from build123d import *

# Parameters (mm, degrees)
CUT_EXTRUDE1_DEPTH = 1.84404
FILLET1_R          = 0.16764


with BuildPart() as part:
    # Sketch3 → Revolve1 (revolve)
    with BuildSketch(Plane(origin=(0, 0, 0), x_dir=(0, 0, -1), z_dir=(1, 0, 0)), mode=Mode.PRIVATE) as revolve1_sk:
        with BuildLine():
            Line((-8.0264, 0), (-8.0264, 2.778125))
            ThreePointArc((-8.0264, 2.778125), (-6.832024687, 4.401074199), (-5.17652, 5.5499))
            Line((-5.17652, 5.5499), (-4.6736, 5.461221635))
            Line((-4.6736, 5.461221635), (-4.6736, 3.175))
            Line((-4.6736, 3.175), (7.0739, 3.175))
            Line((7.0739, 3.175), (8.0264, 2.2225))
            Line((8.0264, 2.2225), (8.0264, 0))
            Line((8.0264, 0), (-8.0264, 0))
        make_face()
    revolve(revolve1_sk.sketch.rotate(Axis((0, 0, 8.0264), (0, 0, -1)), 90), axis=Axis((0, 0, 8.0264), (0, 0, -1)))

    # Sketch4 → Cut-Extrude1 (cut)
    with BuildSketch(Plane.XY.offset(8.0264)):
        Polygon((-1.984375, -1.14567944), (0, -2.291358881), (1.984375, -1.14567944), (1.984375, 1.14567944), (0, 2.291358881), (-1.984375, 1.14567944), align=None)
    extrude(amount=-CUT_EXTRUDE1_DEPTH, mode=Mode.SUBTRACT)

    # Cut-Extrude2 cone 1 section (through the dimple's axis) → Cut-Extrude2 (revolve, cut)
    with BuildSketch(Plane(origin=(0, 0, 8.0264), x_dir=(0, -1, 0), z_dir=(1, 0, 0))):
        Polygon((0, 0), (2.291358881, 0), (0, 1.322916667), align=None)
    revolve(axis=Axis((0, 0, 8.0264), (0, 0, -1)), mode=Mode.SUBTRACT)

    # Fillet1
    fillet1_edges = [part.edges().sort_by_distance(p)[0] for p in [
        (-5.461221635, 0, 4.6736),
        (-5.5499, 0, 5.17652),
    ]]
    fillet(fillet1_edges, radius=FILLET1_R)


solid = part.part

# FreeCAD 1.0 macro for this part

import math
import FreeCAD as App
import Part
import Sketcher
Q = App.Units.Quantity


def edges_at(feature, points):
    """Names of the edges that pass closest to the given points."""
    edges = feature.Shape.Edges
    near = lambda p: min(range(len(edges)), key=lambda i: edges[i].distToShape(Part.Vertex(*p))[0])
    return sorted({f"Edge{near(p) + 1}" for p in points})


def add_polygon(sketch, points):
    """Adds a closed chain of lines whose ends are joined by coincident constraints."""
    first, n = sketch.GeometryCount, len(points)
    for a, b in zip(points, points[1:] + points[:1]):
        sketch.addGeometry(Part.LineSegment(App.Vector(*a, 0), App.Vector(*b, 0)), False)
    for i in range(n):
        sketch.addConstraint(Sketcher.Constraint("Coincident", first + i, 2, first + (i + 1) % n, 1))

doc = App.newDocument("Part")
params = doc.addObject("Spreadsheet::Sheet", "Params")
for row, (alias, value) in enumerate([
    ("sketch1_width", "0.109375 in"),
    ("sketch1_height", "0.632 in"),
    ("revolution_angle", "360 deg"),
    ("pocket1_length", "0.0726 in"),
    ("groove_angle", "360 deg"),
    ("fillet_radius", "0.0066 in"),
], start=1):
    params.set(f"A{row}", alias)
    params.set(f"B{row}", "=" + value)
    params.setAlias(f"B{row}", alias)

body = doc.addObject("PartDesign::Body", "Body")

# Sketch on YZ plane
sketch1 = body.newObject("Sketcher::SketchObject", "Sketch")
sketch1.AttachmentSupport = (doc.getObject("YZ_Plane"), [""])
sketch1.MapMode = "FlatFace"
sketch1.addGeometry(Part.LineSegment(App.Vector(2.778125, 8.0264, 0), App.Vector(0, 8.0264, 0)), False)
sketch1.addGeometry(Part.LineSegment(App.Vector(0, 8.0264, 0), App.Vector(0, -8.0264, 0)), False)
sketch1.addGeometry(Part.LineSegment(App.Vector(0, -8.0264, 0), App.Vector(2.2225, -8.0264, 0)), False)
sketch1.addGeometry(Part.LineSegment(App.Vector(2.2225, -8.0264, 0), App.Vector(3.175, -7.0739, 0)), False)
sketch1.addGeometry(Part.LineSegment(App.Vector(3.175, -7.0739, 0), App.Vector(3.175, 4.6736, 0)), False)
sketch1.addGeometry(Part.LineSegment(App.Vector(3.175, 4.6736, 0), App.Vector(5.461222, 4.6736, 0)), False)
sketch1.addGeometry(Part.LineSegment(App.Vector(5.461222, 4.6736, 0), App.Vector(5.5499, 5.17652, 0)), False)
sketch1.addGeometry(Part.ArcOfCircle(Part.Circle(App.Vector(0, 2.551568, 0), App.Vector(0, 0, 1), 6.139362), math.radians(25.312876), math.radians(63.095137)), False)
sketch1.addConstraint(Sketcher.Constraint("Coincident", 0, 2, 1, 1))
sketch1.addConstraint(Sketcher.Constraint("Coincident", 1, 2, 2, 1))
sketch1.addConstraint(Sketcher.Constraint("Coincident", 2, 2, 3, 1))
sketch1.addConstraint(Sketcher.Constraint("Coincident", 3, 2, 4, 1))
sketch1.addConstraint(Sketcher.Constraint("Coincident", 4, 2, 5, 1))
sketch1.addConstraint(Sketcher.Constraint("Coincident", 5, 2, 6, 1))
sketch1.addConstraint(Sketcher.Constraint("Coincident", 6, 2, 7, 1))
sketch1.addConstraint(Sketcher.Constraint("Coincident", 7, 2, 0, 1))
sketch1.addConstraint(Sketcher.Constraint("Horizontal", 0))
sketch1.addConstraint(Sketcher.Constraint("Vertical", 1))
sketch1.addConstraint(Sketcher.Constraint("Horizontal", 2))
sketch1.addConstraint(Sketcher.Constraint("Vertical", 4))
sketch1.addConstraint(Sketcher.Constraint("Horizontal", 5))
sketch1.addConstraint(Sketcher.Constraint("Symmetric", 0, 2, 1, 2, -1, 1))
sketch1.addConstraint(Sketcher.Constraint("PointOnObject", 7, 3, -2))
sketch1.addConstraint(Sketcher.Constraint("Angle", 3, Q("45 deg")))
sketch1.addConstraint(Sketcher.Constraint("Angle", 6, Q("80 deg")))
sketch1.addConstraint(Sketcher.Constraint("DistanceY", 2, 2, 4, 2, Q("0.5 in")))
sketch1.addConstraint(Sketcher.Constraint("DistanceX", 0, 2, 0, 1, Q("0.109375 in")))
sketch1.addConstraint(Sketcher.Constraint("DistanceY", 1, 2, 1, 1, Q("0.632 in")))
sketch1.addConstraint(Sketcher.Constraint("DistanceX", 2, 1, 2, 2, Q("0.0875 in")))
sketch1.addConstraint(Sketcher.Constraint("DistanceY", 4, 1, 4, 2, Q("0.4625 in")))
sketch1.addConstraint(Sketcher.Constraint("Radius", 7, 6.139362))
sketch1.addConstraint(Sketcher.Constraint("DistanceX", -1, 1, 6, 2, Q("0.2185 in")))
sketch1.setExpression("Constraints[18]", "Params.sketch1_width")
sketch1.setExpression("Constraints[19]", "Params.sketch1_height")
revolution = body.newObject("PartDesign::Revolution", "Revolution")
revolution.Profile = sketch1
revolution.ReferenceAxis = (sketch1, ["V_Axis"])
revolution.setExpression("Angle", "Params.revolution_angle")

# Sketch on XY plane
sketch2 = body.newObject("Sketcher::SketchObject", "Sketch001")
sketch2.AttachmentSupport = (doc.getObject("XY_Plane"), [""])
sketch2.MapMode = "FlatFace"
sketch2.AttachmentOffset = App.Placement(App.Vector(0, 0, 0.316 * 25.4), App.Rotation())
add_polygon(sketch2, [(-1.984375, -1.145679), (0, -2.291359), (1.984375, -1.145679), (1.984375, 1.145679), (0, 2.291359), (-1.984375, 1.145679)])  # lines 0-5
sketch2.addConstraint(Sketcher.Constraint("Vertical", 2))
sketch2.addConstraint(Sketcher.Constraint("Vertical", 5))
sketch2.addConstraint(Sketcher.Constraint("Symmetric", 0, 2, 3, 2, -1, 1))
sketch2.addConstraint(Sketcher.Constraint("Symmetric", 1, 2, 4, 2, -1, 1))
sketch2.addConstraint(Sketcher.Constraint("PointOnObject", 0, 2, -2))
sketch2.addConstraint(Sketcher.Constraint("Parallel", 0, 3))
sketch2.addConstraint(Sketcher.Constraint("Horizontal", 2, 2, 4, 2))
sketch2.addConstraint(Sketcher.Constraint("Angle", 0, Q("-30 deg")))
sketch2.addConstraint(Sketcher.Constraint("DistanceX", -1, 1, 1, 2, Q("0.078125 in")))
sketch2.addConstraint(Sketcher.Constraint("DistanceY", 2, 1, 2, 2, 2.291359))
pocket1 = body.newObject("PartDesign::Pocket", "Pocket")
pocket1.Profile = sketch2
pocket1.setExpression("Length", "Params.pocket1_length")

# Sketch on YZ plane
sketch3 = body.newObject("Sketcher::SketchObject", "Sketch002")
sketch3.AttachmentSupport = (doc.getObject("YZ_Plane"), [""])
sketch3.MapMode = "FlatFace"
add_polygon(sketch3, [(0, 8.0264), (-2.291359, 8.0264), (0, 6.703483)])  # lines 0-2
sketch3.addConstraint(Sketcher.Constraint("Horizontal", 0))
sketch3.addConstraint(Sketcher.Constraint("Vertical", 2))
sketch3.addConstraint(Sketcher.Constraint("PointOnObject", 1, 2, -2))
sketch3.addConstraint(Sketcher.Constraint("Angle", 1, Q("-30 deg")))
sketch3.addConstraint(Sketcher.Constraint("DistanceY", -1, 1, 0, 2, Q("0.316 in")))
sketch3.addConstraint(Sketcher.Constraint("DistanceX", 0, 2, 0, 1, 2.291359))
groove = body.newObject("PartDesign::Groove", "Groove")
groove.Profile = sketch3
groove.ReferenceAxis = (sketch3, ["V_Axis"])
groove.setExpression("Angle", "Params.groove_angle")
doc.recompute()

fillet = body.newObject("PartDesign::Fillet", "Fillet")
fillet.Base = (groove, edges_at(groove, [(-5.461, 0, 4.674), (-5.55, 0, 5.177)]))
fillet.setExpression("Radius", "Params.fillet_radius")

doc.recompute()
